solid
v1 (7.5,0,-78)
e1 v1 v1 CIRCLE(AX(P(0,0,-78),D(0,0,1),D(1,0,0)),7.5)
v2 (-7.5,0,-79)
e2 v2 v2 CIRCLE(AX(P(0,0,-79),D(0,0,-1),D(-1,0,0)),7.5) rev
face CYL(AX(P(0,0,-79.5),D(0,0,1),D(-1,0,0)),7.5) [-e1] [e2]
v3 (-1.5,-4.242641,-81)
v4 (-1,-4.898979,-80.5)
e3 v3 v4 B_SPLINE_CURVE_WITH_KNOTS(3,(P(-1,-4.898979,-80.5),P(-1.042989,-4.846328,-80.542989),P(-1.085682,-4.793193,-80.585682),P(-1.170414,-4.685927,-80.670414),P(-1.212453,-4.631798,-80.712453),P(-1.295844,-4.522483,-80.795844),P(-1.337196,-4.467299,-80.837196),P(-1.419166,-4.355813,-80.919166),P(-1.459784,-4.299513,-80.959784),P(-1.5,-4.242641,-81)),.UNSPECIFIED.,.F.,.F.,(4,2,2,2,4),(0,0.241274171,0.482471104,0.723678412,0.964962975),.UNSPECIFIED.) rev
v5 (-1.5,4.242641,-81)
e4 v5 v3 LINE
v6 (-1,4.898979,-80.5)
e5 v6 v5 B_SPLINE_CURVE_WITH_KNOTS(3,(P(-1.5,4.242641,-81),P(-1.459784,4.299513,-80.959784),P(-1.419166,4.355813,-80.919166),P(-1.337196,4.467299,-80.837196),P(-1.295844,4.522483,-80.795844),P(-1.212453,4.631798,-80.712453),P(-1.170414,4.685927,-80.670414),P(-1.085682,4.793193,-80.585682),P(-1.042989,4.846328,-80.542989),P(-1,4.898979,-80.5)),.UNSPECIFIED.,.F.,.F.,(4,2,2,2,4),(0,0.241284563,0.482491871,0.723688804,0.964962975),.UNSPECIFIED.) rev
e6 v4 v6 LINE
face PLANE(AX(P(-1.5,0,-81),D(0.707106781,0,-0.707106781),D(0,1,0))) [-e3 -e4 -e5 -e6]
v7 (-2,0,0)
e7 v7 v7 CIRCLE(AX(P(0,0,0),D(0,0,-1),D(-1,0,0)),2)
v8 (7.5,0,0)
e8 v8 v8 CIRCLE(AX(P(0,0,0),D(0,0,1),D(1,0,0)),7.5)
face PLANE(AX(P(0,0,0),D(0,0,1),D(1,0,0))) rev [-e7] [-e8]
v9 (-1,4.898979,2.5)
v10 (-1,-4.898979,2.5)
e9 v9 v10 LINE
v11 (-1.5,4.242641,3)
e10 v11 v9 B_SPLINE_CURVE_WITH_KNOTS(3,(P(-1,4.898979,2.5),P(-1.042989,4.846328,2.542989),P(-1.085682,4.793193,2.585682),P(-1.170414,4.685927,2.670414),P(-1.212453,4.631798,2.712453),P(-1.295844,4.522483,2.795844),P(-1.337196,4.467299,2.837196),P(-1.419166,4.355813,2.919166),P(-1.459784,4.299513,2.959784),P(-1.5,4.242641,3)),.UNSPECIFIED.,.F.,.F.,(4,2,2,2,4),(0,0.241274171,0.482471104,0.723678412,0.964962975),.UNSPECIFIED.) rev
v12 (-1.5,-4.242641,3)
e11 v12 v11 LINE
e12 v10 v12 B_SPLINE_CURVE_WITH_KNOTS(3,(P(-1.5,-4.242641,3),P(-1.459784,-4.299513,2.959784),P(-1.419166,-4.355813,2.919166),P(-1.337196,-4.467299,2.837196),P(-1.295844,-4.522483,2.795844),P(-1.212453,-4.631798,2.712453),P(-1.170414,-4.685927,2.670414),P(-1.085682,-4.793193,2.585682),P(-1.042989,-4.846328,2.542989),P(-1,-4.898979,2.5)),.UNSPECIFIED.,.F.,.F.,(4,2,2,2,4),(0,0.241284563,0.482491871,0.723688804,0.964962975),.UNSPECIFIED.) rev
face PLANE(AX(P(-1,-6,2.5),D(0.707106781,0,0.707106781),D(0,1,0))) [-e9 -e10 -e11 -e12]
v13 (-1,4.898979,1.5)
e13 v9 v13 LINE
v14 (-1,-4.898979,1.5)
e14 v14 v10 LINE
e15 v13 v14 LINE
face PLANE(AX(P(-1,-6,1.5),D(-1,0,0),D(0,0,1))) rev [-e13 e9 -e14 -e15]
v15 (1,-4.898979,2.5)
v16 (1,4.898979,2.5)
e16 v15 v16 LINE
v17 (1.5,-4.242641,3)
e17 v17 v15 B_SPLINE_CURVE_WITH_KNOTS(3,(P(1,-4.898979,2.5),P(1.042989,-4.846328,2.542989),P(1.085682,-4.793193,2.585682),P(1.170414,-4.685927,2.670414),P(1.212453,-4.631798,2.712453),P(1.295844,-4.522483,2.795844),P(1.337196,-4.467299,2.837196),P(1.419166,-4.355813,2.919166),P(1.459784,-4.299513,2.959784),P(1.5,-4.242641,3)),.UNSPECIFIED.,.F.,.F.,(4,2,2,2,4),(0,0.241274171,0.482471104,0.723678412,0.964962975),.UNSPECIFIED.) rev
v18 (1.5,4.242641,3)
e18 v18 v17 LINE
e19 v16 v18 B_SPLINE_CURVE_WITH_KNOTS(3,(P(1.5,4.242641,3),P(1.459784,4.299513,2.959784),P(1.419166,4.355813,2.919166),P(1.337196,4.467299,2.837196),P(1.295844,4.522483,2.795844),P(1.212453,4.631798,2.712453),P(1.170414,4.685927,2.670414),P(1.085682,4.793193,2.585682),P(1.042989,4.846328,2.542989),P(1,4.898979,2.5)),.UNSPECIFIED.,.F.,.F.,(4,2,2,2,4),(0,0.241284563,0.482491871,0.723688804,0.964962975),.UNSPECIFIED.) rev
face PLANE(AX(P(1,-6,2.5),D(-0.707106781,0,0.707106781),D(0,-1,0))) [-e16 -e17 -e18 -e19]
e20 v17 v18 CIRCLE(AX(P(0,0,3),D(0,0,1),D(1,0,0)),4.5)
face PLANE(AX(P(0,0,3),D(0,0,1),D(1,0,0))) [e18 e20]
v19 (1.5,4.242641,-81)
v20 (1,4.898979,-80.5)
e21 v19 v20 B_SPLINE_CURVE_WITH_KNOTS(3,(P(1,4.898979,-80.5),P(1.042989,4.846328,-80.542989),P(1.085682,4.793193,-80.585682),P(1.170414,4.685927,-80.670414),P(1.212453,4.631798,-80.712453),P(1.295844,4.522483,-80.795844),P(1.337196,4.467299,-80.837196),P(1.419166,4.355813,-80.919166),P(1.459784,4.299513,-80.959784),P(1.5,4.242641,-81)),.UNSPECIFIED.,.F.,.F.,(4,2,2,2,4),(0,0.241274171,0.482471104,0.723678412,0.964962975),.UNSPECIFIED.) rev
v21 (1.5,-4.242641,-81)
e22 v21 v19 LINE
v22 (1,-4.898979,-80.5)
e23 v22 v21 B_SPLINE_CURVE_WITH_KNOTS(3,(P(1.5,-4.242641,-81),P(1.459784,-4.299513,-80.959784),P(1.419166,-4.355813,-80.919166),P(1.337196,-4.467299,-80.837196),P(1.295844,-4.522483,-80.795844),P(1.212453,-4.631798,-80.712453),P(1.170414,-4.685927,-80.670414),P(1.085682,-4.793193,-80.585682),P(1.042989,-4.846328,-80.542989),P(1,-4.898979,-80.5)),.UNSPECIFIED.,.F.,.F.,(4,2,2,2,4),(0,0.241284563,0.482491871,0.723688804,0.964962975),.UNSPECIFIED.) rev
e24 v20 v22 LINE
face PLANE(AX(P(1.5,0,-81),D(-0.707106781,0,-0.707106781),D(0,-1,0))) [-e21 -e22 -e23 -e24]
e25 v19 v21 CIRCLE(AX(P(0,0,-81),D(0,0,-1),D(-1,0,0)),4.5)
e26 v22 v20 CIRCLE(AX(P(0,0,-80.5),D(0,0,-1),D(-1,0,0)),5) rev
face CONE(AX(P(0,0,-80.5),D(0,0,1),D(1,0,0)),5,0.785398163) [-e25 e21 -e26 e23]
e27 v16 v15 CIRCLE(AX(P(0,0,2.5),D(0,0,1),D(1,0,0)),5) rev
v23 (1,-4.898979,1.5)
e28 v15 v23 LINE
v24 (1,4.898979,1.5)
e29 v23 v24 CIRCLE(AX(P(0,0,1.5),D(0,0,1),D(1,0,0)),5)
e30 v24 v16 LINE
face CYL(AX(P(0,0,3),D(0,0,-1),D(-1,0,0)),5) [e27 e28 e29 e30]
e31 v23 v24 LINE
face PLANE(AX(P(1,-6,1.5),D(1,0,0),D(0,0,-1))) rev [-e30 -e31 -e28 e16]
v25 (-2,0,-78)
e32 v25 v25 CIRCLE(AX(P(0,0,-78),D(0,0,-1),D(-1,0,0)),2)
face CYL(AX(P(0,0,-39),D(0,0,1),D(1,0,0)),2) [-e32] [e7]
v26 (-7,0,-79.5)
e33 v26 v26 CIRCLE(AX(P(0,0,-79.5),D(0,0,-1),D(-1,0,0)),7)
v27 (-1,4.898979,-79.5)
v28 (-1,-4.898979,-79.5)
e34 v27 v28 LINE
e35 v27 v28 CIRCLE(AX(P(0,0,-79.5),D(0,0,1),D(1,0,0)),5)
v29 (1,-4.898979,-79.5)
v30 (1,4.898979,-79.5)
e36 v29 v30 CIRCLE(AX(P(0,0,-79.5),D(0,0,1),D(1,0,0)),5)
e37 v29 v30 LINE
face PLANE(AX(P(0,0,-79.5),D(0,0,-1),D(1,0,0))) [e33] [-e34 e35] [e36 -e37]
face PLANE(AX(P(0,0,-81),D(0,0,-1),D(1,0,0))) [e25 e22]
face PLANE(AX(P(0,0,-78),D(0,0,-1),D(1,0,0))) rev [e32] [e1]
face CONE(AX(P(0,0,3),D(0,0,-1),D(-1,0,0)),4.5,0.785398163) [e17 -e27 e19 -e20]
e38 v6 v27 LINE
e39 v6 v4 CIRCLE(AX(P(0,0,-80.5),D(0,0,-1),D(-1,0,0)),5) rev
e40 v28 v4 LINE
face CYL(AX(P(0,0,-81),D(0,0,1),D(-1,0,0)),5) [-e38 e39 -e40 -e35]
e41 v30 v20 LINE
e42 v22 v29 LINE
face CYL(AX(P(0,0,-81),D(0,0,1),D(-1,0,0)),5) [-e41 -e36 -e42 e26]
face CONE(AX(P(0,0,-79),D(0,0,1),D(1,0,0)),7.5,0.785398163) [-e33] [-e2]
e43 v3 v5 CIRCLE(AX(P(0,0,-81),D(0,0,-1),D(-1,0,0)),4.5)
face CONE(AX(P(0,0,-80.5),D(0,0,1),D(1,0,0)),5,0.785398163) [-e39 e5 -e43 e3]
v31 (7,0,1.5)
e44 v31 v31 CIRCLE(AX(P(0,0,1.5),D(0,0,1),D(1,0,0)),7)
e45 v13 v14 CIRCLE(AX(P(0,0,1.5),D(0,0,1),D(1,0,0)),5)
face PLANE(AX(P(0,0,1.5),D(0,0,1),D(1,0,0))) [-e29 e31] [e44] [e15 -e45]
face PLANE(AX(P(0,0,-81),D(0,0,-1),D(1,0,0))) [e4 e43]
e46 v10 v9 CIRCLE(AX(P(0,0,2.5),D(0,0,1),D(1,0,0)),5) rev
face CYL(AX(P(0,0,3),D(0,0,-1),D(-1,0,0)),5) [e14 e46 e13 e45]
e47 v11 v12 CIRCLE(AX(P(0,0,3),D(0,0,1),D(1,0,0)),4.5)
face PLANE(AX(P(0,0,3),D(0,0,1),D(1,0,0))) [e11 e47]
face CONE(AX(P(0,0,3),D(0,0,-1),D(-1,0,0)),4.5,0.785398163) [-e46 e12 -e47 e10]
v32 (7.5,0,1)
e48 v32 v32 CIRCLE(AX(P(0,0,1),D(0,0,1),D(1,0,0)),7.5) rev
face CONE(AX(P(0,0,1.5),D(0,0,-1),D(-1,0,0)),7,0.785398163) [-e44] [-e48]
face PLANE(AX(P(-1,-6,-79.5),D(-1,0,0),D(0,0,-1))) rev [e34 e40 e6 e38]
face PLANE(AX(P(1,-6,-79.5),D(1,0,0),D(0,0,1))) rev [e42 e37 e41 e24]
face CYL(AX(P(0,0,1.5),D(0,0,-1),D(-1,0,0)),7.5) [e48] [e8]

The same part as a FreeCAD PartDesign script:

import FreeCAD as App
import Part
import Sketcher
from FreeCAD import Vector


def edges_at(feature, points):
    """Names of the edges that pass closest to the given points."""
    edges = feature.Shape.Edges
    near = lambda p: min(range(len(edges)), key=lambda i: edges[i].distToShape(Part.Vertex(*p))[0])
    return sorted({f"Edge{near(p) + 1}" for p in points})

doc = App.newDocument("Part")
body = doc.addObject("PartDesign::Body", "Body")

# Sketch on XY plane
sketch1 = doc.addObject("Sketcher::SketchObject", "Sketch")
body.addObject(sketch1)
sketch1.AttachmentSupport = (doc.XY_Plane, [""])
sketch1.MapMode = "FlatFace"
sketch1.addGeometry(Part.Circle(Vector(0, 0, 0), Vector(0, 0, 1), 7.5), False)
sketch1.addConstraint(Sketcher.Constraint("Coincident", 0, 3, -1, 1))
sketch1.addConstraint(Sketcher.Constraint("Diameter", 0, 15.0))
pad1 = doc.addObject("PartDesign::Pad", "Pad")
body.addObject(pad1)
pad1.Profile = sketch1
pad1.Length = 1.5

# Sketch on XY plane
sketch2 = doc.addObject("Sketcher::SketchObject", "Sketch001")
body.addObject(sketch2)
sketch2.AttachmentSupport = (doc.XY_Plane, [""])
sketch2.MapMode = "FlatFace"
sketch2.AttachmentOffset = App.Placement(Vector(0, 0, 1.5), App.Rotation())
sketch2.addGeometry(Part.Circle(Vector(0, 0, 0), Vector(0, 0, 1), 5), False)
sketch2.addConstraint(Sketcher.Constraint("Coincident", 0, 3, -1, 1))
sketch2.addConstraint(Sketcher.Constraint("Diameter", 0, 10.0))
pad2 = doc.addObject("PartDesign::Pad", "Pad001")
body.addObject(pad2)
pad2.Profile = sketch2
pad2.Length = 1.5

# Sketch on XY plane
sketch3 = doc.addObject("Sketcher::SketchObject", "Sketch002")
body.addObject(sketch3)
sketch3.AttachmentSupport = (doc.XY_Plane, [""])
sketch3.MapMode = "FlatFace"
sketch3.addGeometry(Part.Circle(Vector(0, 0, 0), Vector(0, 0, 1), 2), False)
sketch3.addConstraint(Sketcher.Constraint("Coincident", 0, 3, -1, 1))
sketch3.addConstraint(Sketcher.Constraint("Diameter", 0, 4.0))
pad3 = doc.addObject("PartDesign::Pad", "Pad002")
body.addObject(pad3)
pad3.Profile = sketch3
pad3.Length = 39
pad3.Reversed = True

# Sketch on XY plane
sketch4 = doc.addObject("Sketcher::SketchObject", "Sketch003")
body.addObject(sketch4)
sketch4.AttachmentSupport = (doc.XY_Plane, [""])
sketch4.MapMode = "FlatFace"
sketch4.AttachmentOffset = App.Placement(Vector(0, 0, 3), App.Rotation())
sketch4.addGeometry(Part.LineSegment(Vector(-1, 6, 0), Vector(-1, -6, 0)), False)
sketch4.addGeometry(Part.LineSegment(Vector(-1, -6, 0), Vector(1, -6, 0)), False)
sketch4.addGeometry(Part.LineSegment(Vector(1, -6, 0), Vector(1, 6, 0)), False)
sketch4.addGeometry(Part.LineSegment(Vector(1, 6, 0), Vector(-1, 6, 0)), False)
sketch4.addConstraint(Sketcher.Constraint("Coincident", 0, 2, 1, 1))
sketch4.addConstraint(Sketcher.Constraint("Coincident", 1, 2, 2, 1))
sketch4.addConstraint(Sketcher.Constraint("Coincident", 2, 2, 3, 1))
sketch4.addConstraint(Sketcher.Constraint("Coincident", 3, 2, 0, 1))
sketch4.addConstraint(Sketcher.Constraint("Vertical", 0))
sketch4.addConstraint(Sketcher.Constraint("Horizontal", 1))
sketch4.addConstraint(Sketcher.Constraint("Vertical", 2))
sketch4.addConstraint(Sketcher.Constraint("Horizontal", 3))
sketch4.addConstraint(Sketcher.Constraint("Symmetric", 0, 2, 2, 2, -1, 1))
sketch4.addConstraint(Sketcher.Constraint("DistanceX", 1, 1, 1, 2, 2.0))
sketch4.addConstraint(Sketcher.Constraint("DistanceY", 0, 2, 0, 1, 12.0))
pocket1 = doc.addObject("PartDesign::Pocket", "Pocket")
body.addObject(pocket1)
pocket1.Profile = sketch4
pocket1.Length = 1.5
body2 = doc.addObject("PartDesign::Body", "Body001")
doc.recompute()

body2.BaseFeature = body
doc.recompute()

mirroring = doc.addObject("Part::Mirroring", "Mirroring")
mirroring.Source = body
mirroring.Base = Vector(0, 0, -39)
mirroring.Normal = Vector(0, 0, -1)
body3 = doc.addObject("PartDesign::Body", "Body002")
body3.BaseFeature = mirroring
boolean = doc.addObject("PartDesign::Boolean", "Boolean")
body2.addObject(boolean)
boolean.Type = "Fuse"
boolean.addObjects([body3])
doc.recompute()

chamfer = doc.addObject("PartDesign::Chamfer", "Chamfer")
body2.addObject(chamfer)
chamfer.Base = (boolean, edges_at(boolean, [
    (-5, 0, 3),
    (5, 0, 3),
    (-1, 0, 3),
    (1, 0, 3),
    (-7.5, 0, 1.5),
    (5, 0, -81),
    (1, 0, -81),
    (-7.5, 0, -79.5),
    (-5, 0, -81),
    (-1, 0, -81),
]))
chamfer.Size = 0.5
mirroring.Visibility = False

doc.recompute()
